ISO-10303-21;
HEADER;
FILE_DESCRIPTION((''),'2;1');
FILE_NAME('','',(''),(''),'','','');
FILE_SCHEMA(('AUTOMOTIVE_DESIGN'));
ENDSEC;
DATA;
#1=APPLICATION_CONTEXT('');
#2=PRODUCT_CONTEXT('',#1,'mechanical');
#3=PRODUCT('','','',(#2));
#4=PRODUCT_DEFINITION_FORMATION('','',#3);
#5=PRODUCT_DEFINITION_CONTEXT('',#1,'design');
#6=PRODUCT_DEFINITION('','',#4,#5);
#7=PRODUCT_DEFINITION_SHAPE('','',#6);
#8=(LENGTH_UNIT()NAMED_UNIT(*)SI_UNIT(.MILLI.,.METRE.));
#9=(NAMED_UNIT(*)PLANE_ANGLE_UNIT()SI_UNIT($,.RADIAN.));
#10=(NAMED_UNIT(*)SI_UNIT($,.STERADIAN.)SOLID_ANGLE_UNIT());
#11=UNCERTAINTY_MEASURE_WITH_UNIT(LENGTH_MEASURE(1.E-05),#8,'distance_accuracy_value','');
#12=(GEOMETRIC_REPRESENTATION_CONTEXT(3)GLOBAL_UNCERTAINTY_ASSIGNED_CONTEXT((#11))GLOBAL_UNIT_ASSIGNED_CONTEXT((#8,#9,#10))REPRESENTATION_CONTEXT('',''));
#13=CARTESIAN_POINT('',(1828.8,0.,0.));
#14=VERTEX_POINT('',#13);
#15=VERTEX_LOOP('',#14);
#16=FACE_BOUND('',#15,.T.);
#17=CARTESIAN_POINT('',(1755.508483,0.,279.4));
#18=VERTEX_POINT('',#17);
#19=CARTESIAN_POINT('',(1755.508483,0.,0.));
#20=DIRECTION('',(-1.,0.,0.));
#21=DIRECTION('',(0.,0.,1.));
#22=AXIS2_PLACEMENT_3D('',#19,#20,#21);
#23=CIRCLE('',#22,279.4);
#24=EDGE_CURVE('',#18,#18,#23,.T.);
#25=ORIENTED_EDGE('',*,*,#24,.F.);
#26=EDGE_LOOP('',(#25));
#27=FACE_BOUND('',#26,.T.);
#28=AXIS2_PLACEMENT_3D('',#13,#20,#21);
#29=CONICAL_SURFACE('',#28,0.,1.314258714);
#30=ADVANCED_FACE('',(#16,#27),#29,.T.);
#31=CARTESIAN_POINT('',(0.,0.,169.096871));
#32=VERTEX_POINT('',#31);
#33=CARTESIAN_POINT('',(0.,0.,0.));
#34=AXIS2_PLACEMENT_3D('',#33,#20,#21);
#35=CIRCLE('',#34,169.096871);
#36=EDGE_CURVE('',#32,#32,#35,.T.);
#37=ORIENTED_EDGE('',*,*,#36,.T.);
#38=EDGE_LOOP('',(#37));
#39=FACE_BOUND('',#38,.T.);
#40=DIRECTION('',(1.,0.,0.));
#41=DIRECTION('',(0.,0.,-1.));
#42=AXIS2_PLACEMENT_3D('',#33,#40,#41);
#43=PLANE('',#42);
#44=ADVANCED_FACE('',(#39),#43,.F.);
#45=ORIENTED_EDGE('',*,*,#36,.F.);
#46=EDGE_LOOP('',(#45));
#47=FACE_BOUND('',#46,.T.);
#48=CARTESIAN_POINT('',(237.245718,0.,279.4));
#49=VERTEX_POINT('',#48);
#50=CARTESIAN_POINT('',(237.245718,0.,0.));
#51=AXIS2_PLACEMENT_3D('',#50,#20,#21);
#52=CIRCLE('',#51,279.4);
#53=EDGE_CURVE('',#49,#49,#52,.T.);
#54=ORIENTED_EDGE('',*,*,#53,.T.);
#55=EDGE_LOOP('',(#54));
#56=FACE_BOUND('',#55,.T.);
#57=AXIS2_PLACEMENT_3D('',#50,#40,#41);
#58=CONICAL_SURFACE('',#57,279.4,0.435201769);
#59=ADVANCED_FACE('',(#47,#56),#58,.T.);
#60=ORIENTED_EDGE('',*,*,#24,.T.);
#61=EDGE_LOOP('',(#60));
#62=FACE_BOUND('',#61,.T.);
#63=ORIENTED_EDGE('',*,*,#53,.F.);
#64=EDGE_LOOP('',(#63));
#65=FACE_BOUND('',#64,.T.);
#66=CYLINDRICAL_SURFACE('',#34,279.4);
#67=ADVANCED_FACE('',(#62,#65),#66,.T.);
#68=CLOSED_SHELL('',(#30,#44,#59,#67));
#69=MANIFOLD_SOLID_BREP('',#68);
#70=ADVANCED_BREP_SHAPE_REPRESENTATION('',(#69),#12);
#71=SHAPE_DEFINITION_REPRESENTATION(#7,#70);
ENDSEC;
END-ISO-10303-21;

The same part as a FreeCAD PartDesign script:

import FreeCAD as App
import Part
import Sketcher
Q = App.Units.Quantity


def add_polygon(sketch, points):
    """Adds a closed chain of lines whose ends are joined by coincident constraints."""
    first, n = sketch.GeometryCount, len(points)
    for a, b in zip(points, points[1:] + points[:1]):
        sketch.addGeometry(Part.LineSegment(App.Vector(*a, 0), App.Vector(*b, 0)), False)
    for i in range(n):
        sketch.addConstraint(Sketcher.Constraint("Coincident", first + i, 2, first + (i + 1) % n, 1))

doc = App.newDocument("Part")
body = doc.addObject("PartDesign::Body", "Body")

# Sketch on XY plane
sketch1 = doc.addObject("Sketcher::SketchObject", "Sketch")
body.addObject(sketch1)
sketch1.AttachmentSupport = (doc.XY_Plane, [""])
sketch1.MapMode = "FlatFace"
add_polygon(sketch1, [(0, 169), (0, 0), (1829, 0), (1756, 279), (237, 279)])  # lines 0-4
sketch1.addConstraint(Sketcher.Constraint("Vertical", 0))
sketch1.addConstraint(Sketcher.Constraint("Horizontal", 1))
sketch1.addConstraint(Sketcher.Constraint("Horizontal", 3))
sketch1.addConstraint(Sketcher.Constraint("Coincident", 0, 2, -1, 1))
sketch1.addConstraint(Sketcher.Constraint("DistanceX", 1, 1, 1, 2, Q("72 in")))
sketch1.addConstraint(Sketcher.Constraint("DistanceY", -1, 1, 2, 2, Q("11 in")))
sketch1.addConstraint(Sketcher.Constraint("DistanceY", 0, 2, 0, 1, Q("169.096871 mm")))
sketch1.addConstraint(Sketcher.Constraint("DistanceX", 3, 2, 3, 1, Q("1518.262764 mm")))
sketch1.addConstraint(Sketcher.Constraint("DistanceX", -1, 1, 3, 2, Q("237.245718 mm")))
revolution = doc.addObject("PartDesign::Revolution", "Revolution")
body.addObject(revolution)
revolution.Profile = sketch1
revolution.ReferenceAxis = (sketch1, ["H_Axis"])
revolution.Angle = 360

doc.recompute()
